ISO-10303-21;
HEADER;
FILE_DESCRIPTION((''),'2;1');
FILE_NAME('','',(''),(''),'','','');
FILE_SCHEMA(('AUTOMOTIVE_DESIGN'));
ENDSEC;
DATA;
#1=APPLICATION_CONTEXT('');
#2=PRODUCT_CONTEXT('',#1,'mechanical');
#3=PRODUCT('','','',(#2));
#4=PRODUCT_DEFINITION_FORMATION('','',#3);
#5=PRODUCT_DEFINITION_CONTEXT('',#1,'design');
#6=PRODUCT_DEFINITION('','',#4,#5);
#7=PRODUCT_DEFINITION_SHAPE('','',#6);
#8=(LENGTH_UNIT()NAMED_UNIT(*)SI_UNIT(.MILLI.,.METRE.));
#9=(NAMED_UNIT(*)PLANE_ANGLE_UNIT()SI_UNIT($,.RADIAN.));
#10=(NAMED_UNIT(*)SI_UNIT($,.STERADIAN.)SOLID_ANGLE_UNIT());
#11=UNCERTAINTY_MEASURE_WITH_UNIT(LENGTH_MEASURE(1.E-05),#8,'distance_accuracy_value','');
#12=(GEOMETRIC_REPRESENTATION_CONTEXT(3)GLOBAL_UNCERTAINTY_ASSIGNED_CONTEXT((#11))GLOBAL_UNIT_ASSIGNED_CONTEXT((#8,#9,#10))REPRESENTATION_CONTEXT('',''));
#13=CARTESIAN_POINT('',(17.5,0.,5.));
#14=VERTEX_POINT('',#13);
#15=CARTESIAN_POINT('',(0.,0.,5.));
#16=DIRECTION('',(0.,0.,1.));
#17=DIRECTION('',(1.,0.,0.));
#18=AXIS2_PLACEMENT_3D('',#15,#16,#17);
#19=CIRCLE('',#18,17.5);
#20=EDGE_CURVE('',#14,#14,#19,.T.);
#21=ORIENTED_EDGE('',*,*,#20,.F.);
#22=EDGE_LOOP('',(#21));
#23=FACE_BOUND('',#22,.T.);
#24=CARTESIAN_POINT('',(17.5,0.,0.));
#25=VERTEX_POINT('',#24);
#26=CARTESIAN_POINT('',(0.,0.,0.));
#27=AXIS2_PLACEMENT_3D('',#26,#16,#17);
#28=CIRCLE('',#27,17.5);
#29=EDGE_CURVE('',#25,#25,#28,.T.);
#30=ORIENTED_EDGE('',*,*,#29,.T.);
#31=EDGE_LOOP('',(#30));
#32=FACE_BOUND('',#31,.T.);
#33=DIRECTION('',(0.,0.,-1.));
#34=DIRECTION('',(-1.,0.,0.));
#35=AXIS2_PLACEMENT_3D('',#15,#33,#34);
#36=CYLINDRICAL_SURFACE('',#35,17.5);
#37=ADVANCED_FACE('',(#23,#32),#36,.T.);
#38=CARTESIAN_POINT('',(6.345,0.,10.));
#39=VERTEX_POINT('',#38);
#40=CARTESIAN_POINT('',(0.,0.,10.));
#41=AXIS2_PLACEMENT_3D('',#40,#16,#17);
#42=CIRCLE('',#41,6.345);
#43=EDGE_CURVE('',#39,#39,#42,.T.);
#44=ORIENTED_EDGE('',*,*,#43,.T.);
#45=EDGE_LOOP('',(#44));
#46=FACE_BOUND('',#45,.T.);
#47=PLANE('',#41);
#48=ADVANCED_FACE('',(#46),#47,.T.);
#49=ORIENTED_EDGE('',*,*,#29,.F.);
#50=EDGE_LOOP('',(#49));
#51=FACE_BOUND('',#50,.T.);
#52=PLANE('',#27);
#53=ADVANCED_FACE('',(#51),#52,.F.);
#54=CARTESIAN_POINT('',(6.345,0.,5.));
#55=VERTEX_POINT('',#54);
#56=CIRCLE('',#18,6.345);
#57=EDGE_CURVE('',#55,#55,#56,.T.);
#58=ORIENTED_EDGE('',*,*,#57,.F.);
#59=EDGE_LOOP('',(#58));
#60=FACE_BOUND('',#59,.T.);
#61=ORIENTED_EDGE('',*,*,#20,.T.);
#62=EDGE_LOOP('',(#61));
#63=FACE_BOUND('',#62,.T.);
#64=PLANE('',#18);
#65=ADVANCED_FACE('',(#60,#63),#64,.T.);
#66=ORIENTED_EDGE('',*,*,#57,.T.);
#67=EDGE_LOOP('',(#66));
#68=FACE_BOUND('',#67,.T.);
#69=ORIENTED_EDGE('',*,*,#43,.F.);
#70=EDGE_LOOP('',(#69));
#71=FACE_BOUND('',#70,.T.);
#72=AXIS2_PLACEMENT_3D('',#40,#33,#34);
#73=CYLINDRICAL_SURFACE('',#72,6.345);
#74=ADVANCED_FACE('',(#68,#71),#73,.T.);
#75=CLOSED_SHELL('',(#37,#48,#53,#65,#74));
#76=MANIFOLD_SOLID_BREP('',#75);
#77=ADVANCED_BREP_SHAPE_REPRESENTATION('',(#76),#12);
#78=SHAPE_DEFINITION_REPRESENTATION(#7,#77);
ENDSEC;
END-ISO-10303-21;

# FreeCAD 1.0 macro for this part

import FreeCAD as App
import Part
import Sketcher

doc = App.newDocument("Part")
body = doc.addObject("PartDesign::Body", "Body")

# Sketch on XY plane
sketch1 = body.newObject("Sketcher::SketchObject", "Sketch")
sketch1.AttachmentSupport = (doc.getObject("XY_Plane"), [""])
sketch1.MapMode = "FlatFace"
sketch1.addGeometry(Part.Circle(App.Vector(0, 0, 0), App.Vector(0, 0, 1), 18), False)
sketch1.addGeometry(Part.Circle(App.Vector(0, 0, 0), App.Vector(0, 0, 1), 6), False)
sketch1.addConstraint(Sketcher.Constraint("Coincident", 0, 3, -1, 1))
sketch1.addConstraint(Sketcher.Constraint("Coincident", 1, 3, -1, 1))
sketch1.addConstraint(Sketcher.Constraint("Diameter", 0, 35.0))
sketch1.addConstraint(Sketcher.Constraint("Diameter", 1, 12.69))
pad1 = body.newObject("PartDesign::Pad", "Pad")
pad1.Profile = sketch1
pad1.Length = 5

# Sketch on XY plane
sketch2 = body.newObject("Sketcher::SketchObject", "Sketch001")
sketch2.AttachmentSupport = (doc.getObject("XY_Plane"), [""])
sketch2.MapMode = "FlatFace"
sketch2.addGeometry(Part.Circle(App.Vector(0, 0, 0), App.Vector(0, 0, 1), 6), False)
sketch2.addConstraint(Sketcher.Constraint("Coincident", 0, 3, -1, 1))
sketch2.addConstraint(Sketcher.Constraint("Diameter", 0, 12.69))
pad2 = body.newObject("PartDesign::Pad", "Pad001")
pad2.Profile = sketch2
pad2.Length = 10

doc.recompute()
